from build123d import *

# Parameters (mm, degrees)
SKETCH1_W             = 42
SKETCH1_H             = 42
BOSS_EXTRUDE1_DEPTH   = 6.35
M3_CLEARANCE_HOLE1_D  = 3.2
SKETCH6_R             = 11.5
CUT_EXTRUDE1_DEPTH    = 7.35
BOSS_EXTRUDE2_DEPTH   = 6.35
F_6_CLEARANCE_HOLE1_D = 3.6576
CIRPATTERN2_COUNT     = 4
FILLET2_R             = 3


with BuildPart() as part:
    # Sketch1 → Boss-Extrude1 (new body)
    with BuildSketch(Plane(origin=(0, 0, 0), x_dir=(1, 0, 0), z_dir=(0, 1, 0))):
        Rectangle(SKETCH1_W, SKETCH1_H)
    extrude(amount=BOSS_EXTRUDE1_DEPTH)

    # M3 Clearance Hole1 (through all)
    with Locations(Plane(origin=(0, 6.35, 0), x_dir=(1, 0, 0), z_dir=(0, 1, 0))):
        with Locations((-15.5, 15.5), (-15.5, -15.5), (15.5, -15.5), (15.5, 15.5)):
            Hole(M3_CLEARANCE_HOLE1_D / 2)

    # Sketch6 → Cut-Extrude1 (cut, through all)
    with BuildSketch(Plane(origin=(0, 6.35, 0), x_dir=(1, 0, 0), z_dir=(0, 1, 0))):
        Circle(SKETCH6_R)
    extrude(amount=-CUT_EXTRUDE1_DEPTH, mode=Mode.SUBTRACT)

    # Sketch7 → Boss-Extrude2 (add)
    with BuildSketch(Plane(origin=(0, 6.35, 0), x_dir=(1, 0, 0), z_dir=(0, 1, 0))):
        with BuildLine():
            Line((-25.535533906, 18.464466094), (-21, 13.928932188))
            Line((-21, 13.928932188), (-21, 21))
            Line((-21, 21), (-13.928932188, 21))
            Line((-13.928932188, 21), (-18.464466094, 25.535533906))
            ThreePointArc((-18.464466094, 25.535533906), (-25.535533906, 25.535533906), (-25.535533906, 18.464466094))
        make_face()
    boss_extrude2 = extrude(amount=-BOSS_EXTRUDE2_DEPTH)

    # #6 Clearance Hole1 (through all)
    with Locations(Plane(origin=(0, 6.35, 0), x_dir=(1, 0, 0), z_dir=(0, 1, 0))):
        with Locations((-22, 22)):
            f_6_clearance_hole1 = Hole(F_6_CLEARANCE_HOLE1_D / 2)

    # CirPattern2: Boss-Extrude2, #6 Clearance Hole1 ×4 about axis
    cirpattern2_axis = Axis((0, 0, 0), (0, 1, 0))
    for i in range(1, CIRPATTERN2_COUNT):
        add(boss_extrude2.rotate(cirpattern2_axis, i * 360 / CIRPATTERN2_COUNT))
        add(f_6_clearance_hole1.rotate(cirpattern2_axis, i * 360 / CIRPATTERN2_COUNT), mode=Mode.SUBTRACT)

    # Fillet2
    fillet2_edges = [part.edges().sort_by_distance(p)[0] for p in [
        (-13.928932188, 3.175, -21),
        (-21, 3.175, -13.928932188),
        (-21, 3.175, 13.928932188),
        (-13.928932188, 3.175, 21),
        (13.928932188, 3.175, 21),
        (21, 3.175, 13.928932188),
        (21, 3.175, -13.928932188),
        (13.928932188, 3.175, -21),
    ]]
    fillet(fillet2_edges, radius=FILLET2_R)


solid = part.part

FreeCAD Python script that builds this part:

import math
import FreeCAD as App
import Part
import Sketcher


def edges_at(feature, points):
    """Names of the edges that pass closest to the given points."""
    edges = feature.Shape.Edges
    near = lambda p: min(range(len(edges)), key=lambda i: edges[i].distToShape(Part.Vertex(*p))[0])
    return sorted({f"Edge{near(p) + 1}" for p in points})

doc = App.newDocument("Part")
params = doc.addObject("Spreadsheet::Sheet", "Params")
for row, (alias, value) in enumerate([
    ("sketch1_width", "42 mm"),
    ("pad1_length", "6.35 mm"),
    ("sketch2_diameter", "3.2 mm"),
    ("hole_diameter", "3.2 mm"),
    ("sketch3_diameter", "23 mm"),
    ("sketch4_radius", "5 mm"),
    ("pad2_length", "6.35 mm"),
    ("hole2_diameter", "3.6576 mm"),
    ("fillet_radius", "3 mm"),
], start=1):
    params.set(f"A{row}", alias)
    params.set(f"B{row}", "=" + value)
    params.setAlias(f"B{row}", alias)

body = doc.addObject("PartDesign::Body", "Body")

# Sketch on XZ plane
sketch1 = body.newObject("Sketcher::SketchObject", "Sketch")
sketch1.AttachmentSupport = (doc.getObject("XZ_Plane"), [""])
sketch1.MapMode = "FlatFace"
sketch1.addGeometry([
    Part.LineSegment(App.Vector(-21, -21, 0), App.Vector(-21, 21, 0)),
    Part.LineSegment(App.Vector(-21, 21, 0), App.Vector(21, 21, 0)),
    Part.LineSegment(App.Vector(21, 21, 0), App.Vector(21, -21, 0)),
    Part.LineSegment(App.Vector(21, -21, 0), App.Vector(-21, -21, 0)),
], False)
sketch1.addConstraint([
    Sketcher.Constraint("Coincident", 0, 2, 1, 1),
    Sketcher.Constraint("Coincident", 1, 2, 2, 1),
    Sketcher.Constraint("Coincident", 2, 2, 3, 1),
    Sketcher.Constraint("Coincident", 3, 2, 0, 1),
    Sketcher.Constraint("Vertical", 0),
    Sketcher.Constraint("Horizontal", 1),
    Sketcher.Constraint("Vertical", 2),
    Sketcher.Constraint("Horizontal", 3),
    Sketcher.Constraint("Symmetric", 0, 2, 2, 2, -1, 1),
    Sketcher.Constraint("Equal", 3, 0),
    Sketcher.Constraint("DistanceX", 1, 1, 1, 2, 42.0),
])
sketch1.setExpression("Constraints[10]", "Params.sketch1_width")
pad1 = body.newObject("PartDesign::Pad", "Pad")
pad1.Profile = sketch1
pad1.setExpression("Length", "Params.pad1_length")
pad1.Reversed = True

# Sketch on XZ plane
sketch2 = body.newObject("Sketcher::SketchObject", "Sketch001")
sketch2.AttachmentSupport = (doc.getObject("XZ_Plane"), [""])
sketch2.MapMode = "FlatFace"
sketch2.AttachmentOffset = App.Placement(App.Vector(0, 0, -6.35), App.Rotation())
sketch2.addGeometry([
    Part.Circle(App.Vector(-15.5, -15.5, 0), App.Vector(0, 0, 1), 1.6),
    Part.Circle(App.Vector(-15.5, 15.5, 0), App.Vector(0, 0, 1), 1.6),
    Part.Circle(App.Vector(15.5, 15.5, 0), App.Vector(0, 0, 1), 1.6),
    Part.Circle(App.Vector(15.5, -15.5, 0), App.Vector(0, 0, 1), 1.6),
], False)
sketch2.addConstraint([
    Sketcher.Constraint("Equal", 0, 1),
    Sketcher.Constraint("Equal", 1, 2),
    Sketcher.Constraint("Equal", 2, 3),
    Sketcher.Constraint("Symmetric", 0, 3, 2, 3, -1, 1),
    Sketcher.Constraint("Symmetric", 1, 3, 3, 3, -1, 1),
    Sketcher.Constraint("Symmetric", 1, 3, 2, 3, -2),
    Sketcher.Constraint("Diameter", 0, 3.2),
    Sketcher.Constraint("DistanceY", 0, 3, 1, 3, 31.0),
    Sketcher.Constraint("DistanceX", 1, 3, 2, 3, 31.0),
])
sketch2.setExpression("Constraints[6]", "Params.sketch2_diameter")
doc.recompute()
hole = body.newObject("PartDesign::Hole", "Hole")
hole.Profile = sketch2
hole.ThreadType = "None"
hole.setExpression("Diameter", "Params.hole_diameter")
hole.DepthType = "ThroughAll"
hole.Reversed = True

# Sketch on XZ plane
sketch3 = body.newObject("Sketcher::SketchObject", "Sketch002")
sketch3.AttachmentSupport = (doc.getObject("XZ_Plane"), [""])
sketch3.MapMode = "FlatFace"
sketch3.AttachmentOffset = App.Placement(App.Vector(0, 0, -6.35), App.Rotation())
sketch3.addGeometry(Part.Circle(App.Vector(0, 0, 0), App.Vector(0, 0, 1), 11.5), False)
sketch3.addConstraint([
    Sketcher.Constraint("Coincident", 0, 3, -1, 1),
    Sketcher.Constraint("Diameter", 0, 23.0),
])
sketch3.setExpression("Constraints[1]", "Params.sketch3_diameter")
pocket1 = body.newObject("PartDesign::Pocket", "Pocket")
pocket1.Profile = sketch3
pocket1.Type = "ThroughAll"
pocket1.Reversed = True

# Sketch on XZ plane
sketch4 = body.newObject("Sketcher::SketchObject", "Sketch003")
sketch4.AttachmentSupport = (doc.getObject("XZ_Plane"), [""])
sketch4.MapMode = "FlatFace"
sketch4.AttachmentOffset = App.Placement(App.Vector(0, 0, -6.35), App.Rotation())
sketch4.addGeometry([
    Part.LineSegment(App.Vector(-25.535534, -18.464466, 0), App.Vector(-21, -13.928932, 0)),  # 0
    Part.LineSegment(App.Vector(-21, -13.928932, 0), App.Vector(-21, -21, 0)),  # 1
    Part.LineSegment(App.Vector(-21, -21, 0), App.Vector(-13.928932, -21, 0)),  # 2
    Part.LineSegment(App.Vector(-13.928932, -21, 0), App.Vector(-18.464466, -25.535534, 0)),  # 3
    Part.ArcOfCircle(Part.Circle(App.Vector(-22, -22, 0), App.Vector(0, 0, 1), 5), math.radians(135), math.radians(315)),  # 4
], False)
sketch4.addConstraint([
    Sketcher.Constraint("Coincident", 0, 2, 1, 1),
    Sketcher.Constraint("Coincident", 1, 2, 2, 1),
    Sketcher.Constraint("Coincident", 2, 2, 3, 1),
    Sketcher.Constraint("Tangent", 3, 2, 4, 2),
    Sketcher.Constraint("Tangent", 4, 1, 0, 1),
    Sketcher.Constraint("Vertical", 1),
    Sketcher.Constraint("Horizontal", 2),
    Sketcher.Constraint("Parallel", 0, 3),
    Sketcher.Constraint("Equal", 2, 1),
    Sketcher.Constraint("Equal", 0, 3),
    Sketcher.Constraint("Radius", 4, 5.0),
    Sketcher.Constraint("DistanceX", 4, 3, -1, 1, 22.0),
    Sketcher.Constraint("DistanceY", 4, 3, -1, 1, 22.0),
    Sketcher.Constraint("DistanceX", 0, 2, -1, 1, 21.0),
])
sketch4.setExpression("Constraints[10]", "Params.sketch4_radius")
pad2 = body.newObject("PartDesign::Pad", "Pad001")
pad2.Profile = sketch4
pad2.setExpression("Length", "Params.pad2_length")

# Sketch on XZ plane
sketch5 = body.newObject("Sketcher::SketchObject", "Sketch004")
sketch5.AttachmentSupport = (doc.getObject("XZ_Plane"), [""])
sketch5.MapMode = "FlatFace"
sketch5.AttachmentOffset = App.Placement(App.Vector(0, 0, -6.35), App.Rotation())
sketch5.addGeometry(Part.Circle(App.Vector(-22, -22, 0), App.Vector(0, 0, 1), 1.8288), False)
sketch5.addConstraint([
    Sketcher.Constraint("DistanceX", 0, 3, -1, 1, 22.0),
    Sketcher.Constraint("DistanceY", 0, 3, -1, 1, 22.0),
    Sketcher.Constraint("Diameter", 0, 3.6576),
])
doc.recompute()
hole2 = body.newObject("PartDesign::Hole", "Hole001")
hole2.Profile = sketch5
hole2.ThreadType = "None"
hole2.setExpression("Diameter", "Params.hole2_diameter")
hole2.DepthType = "ThroughAll"
hole2.Reversed = True
doc.recompute()

polarpattern = body.newObject("PartDesign::PolarPattern", "PolarPattern")
polarpattern.Originals = [pad2, hole2]
polarpattern.Axis = (doc.getObject("Y_Axis"), [""])
polarpattern.Angle = 360
polarpattern.Occurrences = 4
body.Tip = polarpattern
doc.recompute()

fillet = body.newObject("PartDesign::Fillet", "Fillet")
fillet.Base = (polarpattern, edges_at(polarpattern, [
    (-13.929, 3.175, -21),
    (-21, 3.175, -13.929),
    (-21, 3.175, 13.929),
    (-13.929, 3.175, 21),
    (13.929, 3.175, 21),
    (21, 3.175, 13.929),
    (21, 3.175, -13.929),
    (13.929, 3.175, -21),
]))
fillet.setExpression("Radius", "Params.fillet_radius")

doc.recompute()
